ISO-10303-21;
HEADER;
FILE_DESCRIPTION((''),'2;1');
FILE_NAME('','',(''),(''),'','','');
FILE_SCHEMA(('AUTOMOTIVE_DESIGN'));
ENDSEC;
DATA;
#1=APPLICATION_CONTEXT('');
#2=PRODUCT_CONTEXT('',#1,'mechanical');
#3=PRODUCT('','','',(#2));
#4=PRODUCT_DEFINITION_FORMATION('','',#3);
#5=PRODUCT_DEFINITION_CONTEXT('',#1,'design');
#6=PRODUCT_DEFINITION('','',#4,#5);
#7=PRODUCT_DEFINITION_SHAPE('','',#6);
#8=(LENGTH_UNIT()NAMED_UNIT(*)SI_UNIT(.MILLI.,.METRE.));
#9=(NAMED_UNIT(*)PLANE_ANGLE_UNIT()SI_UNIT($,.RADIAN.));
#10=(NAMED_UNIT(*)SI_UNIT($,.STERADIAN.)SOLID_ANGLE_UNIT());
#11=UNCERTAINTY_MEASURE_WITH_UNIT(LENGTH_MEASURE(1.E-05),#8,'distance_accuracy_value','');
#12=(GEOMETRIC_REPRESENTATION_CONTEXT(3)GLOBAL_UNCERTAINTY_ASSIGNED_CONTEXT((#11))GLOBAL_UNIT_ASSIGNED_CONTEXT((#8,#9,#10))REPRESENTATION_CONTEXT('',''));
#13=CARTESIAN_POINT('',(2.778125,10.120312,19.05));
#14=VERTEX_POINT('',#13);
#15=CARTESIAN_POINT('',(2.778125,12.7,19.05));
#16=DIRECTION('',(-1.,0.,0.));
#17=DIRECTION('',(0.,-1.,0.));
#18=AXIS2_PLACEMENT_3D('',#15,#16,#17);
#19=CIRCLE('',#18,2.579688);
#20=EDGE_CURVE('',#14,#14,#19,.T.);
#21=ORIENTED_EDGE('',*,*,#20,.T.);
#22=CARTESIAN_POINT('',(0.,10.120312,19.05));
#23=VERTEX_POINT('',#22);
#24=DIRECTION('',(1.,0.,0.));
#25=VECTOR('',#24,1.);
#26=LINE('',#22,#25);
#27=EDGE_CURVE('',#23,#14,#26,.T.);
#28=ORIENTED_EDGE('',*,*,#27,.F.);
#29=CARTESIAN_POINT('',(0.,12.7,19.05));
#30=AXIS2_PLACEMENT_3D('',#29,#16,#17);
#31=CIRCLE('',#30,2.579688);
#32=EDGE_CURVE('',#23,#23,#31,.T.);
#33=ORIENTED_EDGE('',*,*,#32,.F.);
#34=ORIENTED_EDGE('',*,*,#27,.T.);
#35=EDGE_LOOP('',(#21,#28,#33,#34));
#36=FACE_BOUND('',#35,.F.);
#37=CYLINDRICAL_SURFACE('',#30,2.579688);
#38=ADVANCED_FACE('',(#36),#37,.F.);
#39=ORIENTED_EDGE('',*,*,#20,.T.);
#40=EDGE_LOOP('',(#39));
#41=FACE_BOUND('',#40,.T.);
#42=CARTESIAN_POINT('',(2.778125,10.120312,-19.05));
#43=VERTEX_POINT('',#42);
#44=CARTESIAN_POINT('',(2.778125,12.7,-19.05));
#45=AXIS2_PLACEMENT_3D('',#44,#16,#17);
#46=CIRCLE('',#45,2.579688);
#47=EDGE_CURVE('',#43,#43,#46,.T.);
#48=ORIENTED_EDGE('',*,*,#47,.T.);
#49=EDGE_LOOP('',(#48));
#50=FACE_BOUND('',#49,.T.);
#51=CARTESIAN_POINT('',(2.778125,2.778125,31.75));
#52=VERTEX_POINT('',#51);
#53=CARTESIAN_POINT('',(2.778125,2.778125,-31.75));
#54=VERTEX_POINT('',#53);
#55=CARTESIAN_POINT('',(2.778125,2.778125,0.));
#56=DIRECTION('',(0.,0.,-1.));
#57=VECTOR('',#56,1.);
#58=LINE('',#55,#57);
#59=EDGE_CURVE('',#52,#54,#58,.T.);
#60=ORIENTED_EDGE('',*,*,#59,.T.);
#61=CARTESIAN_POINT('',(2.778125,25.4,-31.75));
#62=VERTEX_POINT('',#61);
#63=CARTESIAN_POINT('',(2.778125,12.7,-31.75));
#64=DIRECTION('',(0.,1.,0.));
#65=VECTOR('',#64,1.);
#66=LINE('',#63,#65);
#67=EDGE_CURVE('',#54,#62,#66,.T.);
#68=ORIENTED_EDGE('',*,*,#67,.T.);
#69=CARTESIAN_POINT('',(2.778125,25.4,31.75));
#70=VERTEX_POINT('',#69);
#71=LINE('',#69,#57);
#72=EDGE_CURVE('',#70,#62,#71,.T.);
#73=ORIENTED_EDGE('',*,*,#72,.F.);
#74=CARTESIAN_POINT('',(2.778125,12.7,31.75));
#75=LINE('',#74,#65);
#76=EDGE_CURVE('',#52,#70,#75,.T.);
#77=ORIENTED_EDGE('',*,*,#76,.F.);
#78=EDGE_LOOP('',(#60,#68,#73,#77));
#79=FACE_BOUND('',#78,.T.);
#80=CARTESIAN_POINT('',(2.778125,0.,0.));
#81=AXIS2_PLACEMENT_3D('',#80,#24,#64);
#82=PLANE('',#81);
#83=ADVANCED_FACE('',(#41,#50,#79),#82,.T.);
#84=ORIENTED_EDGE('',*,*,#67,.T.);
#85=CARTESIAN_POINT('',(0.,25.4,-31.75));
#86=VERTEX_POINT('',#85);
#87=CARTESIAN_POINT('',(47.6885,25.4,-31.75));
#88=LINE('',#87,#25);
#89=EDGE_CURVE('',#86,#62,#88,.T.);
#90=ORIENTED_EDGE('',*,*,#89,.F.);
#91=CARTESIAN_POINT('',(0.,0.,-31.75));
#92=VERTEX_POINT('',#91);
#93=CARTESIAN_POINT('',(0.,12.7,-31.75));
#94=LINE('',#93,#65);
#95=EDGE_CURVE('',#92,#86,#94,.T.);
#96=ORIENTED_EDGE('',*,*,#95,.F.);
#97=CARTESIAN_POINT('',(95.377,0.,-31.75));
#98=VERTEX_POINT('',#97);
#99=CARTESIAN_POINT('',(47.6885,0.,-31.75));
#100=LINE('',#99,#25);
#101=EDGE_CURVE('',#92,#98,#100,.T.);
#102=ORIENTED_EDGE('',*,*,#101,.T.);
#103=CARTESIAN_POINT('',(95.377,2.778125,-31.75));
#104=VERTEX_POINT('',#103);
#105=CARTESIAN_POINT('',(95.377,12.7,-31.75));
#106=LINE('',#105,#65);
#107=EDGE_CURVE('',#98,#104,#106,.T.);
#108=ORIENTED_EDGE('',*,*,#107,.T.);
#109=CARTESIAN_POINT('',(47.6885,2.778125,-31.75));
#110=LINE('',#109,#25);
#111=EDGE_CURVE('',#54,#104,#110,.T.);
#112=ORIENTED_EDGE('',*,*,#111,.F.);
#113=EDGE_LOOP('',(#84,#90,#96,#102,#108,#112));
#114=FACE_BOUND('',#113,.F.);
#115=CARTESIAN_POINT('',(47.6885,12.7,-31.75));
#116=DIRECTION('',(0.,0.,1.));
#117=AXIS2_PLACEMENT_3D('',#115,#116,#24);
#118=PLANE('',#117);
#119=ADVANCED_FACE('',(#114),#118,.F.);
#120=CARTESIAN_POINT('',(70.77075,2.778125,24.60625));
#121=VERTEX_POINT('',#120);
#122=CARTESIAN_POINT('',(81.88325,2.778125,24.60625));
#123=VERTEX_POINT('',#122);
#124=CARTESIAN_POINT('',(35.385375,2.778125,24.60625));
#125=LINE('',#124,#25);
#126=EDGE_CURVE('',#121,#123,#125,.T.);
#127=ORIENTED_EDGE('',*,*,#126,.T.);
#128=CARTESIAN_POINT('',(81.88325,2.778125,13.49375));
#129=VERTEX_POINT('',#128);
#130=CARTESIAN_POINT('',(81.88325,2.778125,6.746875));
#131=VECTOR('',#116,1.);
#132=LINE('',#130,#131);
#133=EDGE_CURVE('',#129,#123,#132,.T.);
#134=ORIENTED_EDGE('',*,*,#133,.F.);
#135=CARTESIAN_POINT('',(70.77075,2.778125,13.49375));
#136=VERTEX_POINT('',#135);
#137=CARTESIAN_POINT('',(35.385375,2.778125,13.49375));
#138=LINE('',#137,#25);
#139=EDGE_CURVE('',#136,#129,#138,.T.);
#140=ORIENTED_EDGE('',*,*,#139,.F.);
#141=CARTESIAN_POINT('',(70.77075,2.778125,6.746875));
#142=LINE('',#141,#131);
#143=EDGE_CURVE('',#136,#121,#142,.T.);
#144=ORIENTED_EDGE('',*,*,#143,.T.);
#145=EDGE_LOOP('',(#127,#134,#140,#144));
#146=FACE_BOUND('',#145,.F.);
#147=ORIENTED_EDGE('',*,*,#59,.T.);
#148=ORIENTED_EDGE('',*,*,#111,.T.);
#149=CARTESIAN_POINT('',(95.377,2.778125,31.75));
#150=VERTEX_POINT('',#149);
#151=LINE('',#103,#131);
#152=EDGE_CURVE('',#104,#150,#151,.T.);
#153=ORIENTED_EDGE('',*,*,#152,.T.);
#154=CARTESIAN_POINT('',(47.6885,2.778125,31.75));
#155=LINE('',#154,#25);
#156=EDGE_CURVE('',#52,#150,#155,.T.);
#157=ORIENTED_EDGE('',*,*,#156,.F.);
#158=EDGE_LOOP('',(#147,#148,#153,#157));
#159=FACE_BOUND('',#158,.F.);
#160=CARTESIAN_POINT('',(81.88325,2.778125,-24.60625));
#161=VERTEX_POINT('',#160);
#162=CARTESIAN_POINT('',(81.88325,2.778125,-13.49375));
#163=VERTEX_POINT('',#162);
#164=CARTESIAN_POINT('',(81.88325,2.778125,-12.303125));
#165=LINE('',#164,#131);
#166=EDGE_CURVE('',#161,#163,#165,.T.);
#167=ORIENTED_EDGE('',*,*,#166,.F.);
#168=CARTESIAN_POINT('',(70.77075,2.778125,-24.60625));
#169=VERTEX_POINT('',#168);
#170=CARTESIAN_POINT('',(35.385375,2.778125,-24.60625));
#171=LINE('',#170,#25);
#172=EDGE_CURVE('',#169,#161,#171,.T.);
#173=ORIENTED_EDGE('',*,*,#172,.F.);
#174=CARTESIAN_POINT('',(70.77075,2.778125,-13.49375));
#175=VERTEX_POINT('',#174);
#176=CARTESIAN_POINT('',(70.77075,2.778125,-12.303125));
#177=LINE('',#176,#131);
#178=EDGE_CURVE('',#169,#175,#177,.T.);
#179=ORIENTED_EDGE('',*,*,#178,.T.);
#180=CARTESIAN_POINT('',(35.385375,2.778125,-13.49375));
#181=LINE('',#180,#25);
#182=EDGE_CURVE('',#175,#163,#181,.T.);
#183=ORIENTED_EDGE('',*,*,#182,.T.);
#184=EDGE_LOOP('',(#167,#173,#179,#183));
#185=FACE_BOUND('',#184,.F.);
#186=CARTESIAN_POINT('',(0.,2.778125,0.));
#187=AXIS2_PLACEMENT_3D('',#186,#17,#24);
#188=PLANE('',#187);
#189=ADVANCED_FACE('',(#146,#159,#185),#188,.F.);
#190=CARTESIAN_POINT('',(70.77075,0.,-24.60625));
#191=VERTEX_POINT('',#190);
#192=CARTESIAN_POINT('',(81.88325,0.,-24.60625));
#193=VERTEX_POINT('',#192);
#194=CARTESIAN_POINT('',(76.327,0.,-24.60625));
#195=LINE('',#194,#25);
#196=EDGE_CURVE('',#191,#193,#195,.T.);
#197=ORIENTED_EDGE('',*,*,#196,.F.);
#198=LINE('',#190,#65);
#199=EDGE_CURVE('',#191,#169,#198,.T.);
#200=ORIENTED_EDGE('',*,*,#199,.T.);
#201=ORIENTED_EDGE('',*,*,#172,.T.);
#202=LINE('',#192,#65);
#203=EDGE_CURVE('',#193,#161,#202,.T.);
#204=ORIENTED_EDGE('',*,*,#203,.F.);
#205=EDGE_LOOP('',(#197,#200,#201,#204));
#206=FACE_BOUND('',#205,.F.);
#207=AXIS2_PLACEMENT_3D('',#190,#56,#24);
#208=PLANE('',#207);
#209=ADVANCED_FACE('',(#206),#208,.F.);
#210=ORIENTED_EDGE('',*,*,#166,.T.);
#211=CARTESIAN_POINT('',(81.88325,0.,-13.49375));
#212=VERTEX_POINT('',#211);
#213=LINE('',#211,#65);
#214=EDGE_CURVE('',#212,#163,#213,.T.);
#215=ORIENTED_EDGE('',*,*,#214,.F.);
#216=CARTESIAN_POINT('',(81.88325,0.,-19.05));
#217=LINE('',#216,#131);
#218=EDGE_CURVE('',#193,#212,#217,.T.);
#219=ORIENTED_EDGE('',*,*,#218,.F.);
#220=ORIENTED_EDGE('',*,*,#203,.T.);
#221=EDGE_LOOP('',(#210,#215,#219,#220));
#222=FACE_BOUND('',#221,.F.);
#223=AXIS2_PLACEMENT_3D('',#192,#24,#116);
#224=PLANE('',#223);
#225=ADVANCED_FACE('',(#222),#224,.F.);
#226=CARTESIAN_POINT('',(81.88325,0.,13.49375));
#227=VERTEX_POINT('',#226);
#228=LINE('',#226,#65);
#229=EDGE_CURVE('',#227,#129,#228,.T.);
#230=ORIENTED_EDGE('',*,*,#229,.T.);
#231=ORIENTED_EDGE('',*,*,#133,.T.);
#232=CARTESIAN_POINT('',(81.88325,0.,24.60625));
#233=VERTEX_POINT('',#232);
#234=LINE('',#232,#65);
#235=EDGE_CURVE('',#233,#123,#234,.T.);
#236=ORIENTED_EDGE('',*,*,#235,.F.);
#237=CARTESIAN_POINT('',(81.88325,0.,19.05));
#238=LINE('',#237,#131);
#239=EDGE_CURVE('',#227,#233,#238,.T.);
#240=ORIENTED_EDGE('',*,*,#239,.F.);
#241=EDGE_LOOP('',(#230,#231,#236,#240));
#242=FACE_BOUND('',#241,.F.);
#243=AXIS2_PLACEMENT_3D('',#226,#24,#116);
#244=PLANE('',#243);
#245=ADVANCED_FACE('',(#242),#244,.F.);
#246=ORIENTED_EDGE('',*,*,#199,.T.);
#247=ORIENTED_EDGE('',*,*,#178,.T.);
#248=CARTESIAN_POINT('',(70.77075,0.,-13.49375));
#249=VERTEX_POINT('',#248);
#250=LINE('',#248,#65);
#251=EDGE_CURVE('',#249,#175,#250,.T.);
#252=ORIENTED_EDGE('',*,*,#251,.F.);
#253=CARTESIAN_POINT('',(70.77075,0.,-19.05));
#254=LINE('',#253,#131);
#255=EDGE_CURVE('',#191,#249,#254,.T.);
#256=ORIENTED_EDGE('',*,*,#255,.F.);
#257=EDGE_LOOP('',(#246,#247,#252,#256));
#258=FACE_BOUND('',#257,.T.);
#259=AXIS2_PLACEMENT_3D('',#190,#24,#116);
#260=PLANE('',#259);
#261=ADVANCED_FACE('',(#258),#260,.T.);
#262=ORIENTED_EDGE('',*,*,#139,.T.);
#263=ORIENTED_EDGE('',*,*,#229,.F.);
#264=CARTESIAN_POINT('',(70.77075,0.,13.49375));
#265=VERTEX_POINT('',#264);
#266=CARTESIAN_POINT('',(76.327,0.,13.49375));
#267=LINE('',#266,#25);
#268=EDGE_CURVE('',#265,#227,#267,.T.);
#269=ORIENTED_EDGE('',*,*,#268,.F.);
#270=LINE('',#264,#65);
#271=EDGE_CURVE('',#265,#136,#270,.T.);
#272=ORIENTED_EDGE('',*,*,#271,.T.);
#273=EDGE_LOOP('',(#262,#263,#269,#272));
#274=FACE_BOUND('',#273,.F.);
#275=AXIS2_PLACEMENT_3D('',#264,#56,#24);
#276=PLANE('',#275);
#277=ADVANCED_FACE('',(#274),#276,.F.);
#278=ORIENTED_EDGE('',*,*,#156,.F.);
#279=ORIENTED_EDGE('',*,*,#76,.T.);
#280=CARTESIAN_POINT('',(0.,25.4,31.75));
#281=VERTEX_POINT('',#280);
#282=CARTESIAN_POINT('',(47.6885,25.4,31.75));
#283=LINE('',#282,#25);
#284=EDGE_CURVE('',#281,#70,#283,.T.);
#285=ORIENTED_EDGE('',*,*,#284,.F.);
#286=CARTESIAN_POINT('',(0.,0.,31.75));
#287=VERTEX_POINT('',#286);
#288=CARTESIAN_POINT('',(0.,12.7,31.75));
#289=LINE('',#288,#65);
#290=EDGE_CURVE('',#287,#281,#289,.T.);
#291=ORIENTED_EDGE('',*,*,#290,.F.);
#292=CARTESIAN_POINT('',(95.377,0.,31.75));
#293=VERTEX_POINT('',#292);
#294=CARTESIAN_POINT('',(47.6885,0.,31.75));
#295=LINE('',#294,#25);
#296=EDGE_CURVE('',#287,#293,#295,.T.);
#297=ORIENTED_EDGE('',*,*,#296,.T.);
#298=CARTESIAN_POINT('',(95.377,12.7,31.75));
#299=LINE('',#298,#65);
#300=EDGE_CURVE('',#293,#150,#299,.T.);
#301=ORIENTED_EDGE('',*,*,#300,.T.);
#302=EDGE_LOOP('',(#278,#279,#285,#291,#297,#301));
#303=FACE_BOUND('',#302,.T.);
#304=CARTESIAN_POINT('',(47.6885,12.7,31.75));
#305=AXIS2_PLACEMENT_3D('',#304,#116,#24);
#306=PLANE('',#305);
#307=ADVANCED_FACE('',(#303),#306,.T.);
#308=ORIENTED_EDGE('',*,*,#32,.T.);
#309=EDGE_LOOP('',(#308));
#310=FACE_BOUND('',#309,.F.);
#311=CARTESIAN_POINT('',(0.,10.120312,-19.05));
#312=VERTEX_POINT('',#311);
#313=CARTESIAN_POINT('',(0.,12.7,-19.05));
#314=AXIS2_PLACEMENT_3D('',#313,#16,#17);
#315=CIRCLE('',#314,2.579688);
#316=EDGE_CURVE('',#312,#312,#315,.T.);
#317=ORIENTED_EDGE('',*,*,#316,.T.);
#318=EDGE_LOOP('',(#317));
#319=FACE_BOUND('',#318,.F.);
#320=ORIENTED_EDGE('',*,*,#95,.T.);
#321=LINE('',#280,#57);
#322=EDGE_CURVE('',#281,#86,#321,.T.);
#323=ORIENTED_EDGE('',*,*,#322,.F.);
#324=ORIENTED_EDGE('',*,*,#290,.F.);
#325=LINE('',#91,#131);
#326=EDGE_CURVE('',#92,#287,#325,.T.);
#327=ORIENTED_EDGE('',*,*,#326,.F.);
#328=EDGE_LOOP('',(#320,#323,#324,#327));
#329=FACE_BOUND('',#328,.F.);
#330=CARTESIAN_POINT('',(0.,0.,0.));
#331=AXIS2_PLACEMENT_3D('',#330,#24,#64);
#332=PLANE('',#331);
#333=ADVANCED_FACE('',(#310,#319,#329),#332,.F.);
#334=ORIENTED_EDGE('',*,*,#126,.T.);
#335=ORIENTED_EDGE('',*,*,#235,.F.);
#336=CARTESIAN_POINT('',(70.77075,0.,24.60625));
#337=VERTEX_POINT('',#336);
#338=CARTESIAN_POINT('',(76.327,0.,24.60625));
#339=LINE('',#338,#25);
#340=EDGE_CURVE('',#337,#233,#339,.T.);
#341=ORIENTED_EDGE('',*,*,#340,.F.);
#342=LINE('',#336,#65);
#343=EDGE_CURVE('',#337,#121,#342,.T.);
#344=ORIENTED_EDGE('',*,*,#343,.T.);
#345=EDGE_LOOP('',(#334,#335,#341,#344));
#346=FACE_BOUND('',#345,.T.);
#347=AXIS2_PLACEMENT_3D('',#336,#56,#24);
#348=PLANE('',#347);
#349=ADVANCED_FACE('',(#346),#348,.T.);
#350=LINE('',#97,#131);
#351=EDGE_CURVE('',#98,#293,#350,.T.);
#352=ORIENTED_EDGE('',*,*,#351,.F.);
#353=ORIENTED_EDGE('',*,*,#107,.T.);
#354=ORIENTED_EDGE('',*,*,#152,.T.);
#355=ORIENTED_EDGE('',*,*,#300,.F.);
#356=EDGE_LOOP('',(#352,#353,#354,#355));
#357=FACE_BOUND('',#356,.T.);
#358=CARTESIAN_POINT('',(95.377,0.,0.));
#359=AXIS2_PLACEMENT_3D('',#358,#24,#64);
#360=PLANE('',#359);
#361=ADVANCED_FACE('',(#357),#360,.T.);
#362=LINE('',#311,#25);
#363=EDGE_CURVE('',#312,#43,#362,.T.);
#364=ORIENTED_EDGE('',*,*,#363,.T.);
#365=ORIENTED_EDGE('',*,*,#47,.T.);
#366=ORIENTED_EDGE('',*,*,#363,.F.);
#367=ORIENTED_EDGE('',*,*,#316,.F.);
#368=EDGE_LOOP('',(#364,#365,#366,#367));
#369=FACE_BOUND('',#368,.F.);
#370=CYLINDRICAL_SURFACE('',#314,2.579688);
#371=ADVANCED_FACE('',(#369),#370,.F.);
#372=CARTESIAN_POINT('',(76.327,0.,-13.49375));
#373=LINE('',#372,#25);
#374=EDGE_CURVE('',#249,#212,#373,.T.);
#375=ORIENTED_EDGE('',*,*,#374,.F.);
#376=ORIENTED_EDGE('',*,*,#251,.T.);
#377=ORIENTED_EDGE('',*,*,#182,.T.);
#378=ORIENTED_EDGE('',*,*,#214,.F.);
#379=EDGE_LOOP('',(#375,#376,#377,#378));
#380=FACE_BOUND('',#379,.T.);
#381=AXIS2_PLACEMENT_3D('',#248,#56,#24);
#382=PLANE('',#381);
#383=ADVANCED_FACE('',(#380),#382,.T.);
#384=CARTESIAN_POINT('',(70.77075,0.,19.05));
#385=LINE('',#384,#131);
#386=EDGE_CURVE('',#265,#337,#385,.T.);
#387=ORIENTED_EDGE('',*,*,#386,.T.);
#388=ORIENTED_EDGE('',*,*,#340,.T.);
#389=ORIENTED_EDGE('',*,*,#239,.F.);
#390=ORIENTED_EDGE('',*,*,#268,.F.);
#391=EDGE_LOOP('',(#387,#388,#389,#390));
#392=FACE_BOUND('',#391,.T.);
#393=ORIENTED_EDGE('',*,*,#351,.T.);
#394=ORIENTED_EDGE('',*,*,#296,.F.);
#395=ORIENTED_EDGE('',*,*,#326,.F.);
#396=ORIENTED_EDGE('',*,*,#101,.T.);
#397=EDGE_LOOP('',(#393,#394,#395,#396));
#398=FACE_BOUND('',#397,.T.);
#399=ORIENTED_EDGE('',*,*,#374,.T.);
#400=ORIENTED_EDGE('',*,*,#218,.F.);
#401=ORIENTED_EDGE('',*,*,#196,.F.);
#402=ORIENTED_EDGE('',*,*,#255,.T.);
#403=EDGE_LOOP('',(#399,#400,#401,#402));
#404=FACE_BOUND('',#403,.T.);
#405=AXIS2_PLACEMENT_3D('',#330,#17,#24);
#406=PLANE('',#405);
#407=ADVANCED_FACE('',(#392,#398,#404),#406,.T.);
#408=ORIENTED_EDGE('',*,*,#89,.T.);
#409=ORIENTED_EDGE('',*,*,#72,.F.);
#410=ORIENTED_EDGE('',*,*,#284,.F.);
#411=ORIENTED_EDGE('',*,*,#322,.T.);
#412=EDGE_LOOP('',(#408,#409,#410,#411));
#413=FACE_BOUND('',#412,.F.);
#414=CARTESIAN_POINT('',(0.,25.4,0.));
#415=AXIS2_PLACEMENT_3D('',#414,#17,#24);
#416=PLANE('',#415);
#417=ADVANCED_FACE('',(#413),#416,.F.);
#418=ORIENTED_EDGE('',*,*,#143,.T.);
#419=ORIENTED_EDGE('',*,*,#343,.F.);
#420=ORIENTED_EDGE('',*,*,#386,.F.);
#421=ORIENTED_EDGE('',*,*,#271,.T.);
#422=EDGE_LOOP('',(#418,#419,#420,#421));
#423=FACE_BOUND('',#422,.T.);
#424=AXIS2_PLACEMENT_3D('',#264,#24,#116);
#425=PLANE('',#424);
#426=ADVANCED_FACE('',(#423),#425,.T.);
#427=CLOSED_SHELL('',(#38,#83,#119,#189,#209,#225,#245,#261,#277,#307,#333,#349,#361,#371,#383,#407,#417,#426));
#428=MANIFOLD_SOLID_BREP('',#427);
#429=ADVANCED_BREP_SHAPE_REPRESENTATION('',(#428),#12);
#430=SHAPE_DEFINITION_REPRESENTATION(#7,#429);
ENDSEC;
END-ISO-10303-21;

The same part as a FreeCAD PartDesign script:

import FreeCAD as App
import Part
import Sketcher

V = App.Vector
Q = App.Units.Quantity


def faces_at(feature, points):
    """Names of the faces that lie closest to the given points."""
    faces = feature.Shape.Faces
    near = lambda p: min(range(len(faces)), key=lambda i: faces[i].distToShape(Part.Vertex(*p))[0])
    return sorted({f"Face{near(p) + 1}" for p in points})

doc = App.newDocument("Part")
body = doc.addObject("PartDesign::Body", "Body")

# Sketch on XY plane
sketch1 = body.newObject("Sketcher::SketchObject", "Sketch")
sketch1.AttachmentSupport = (doc.getObject("XY_Plane"), [""])
sketch1.MapMode = "FlatFace"
sketch1.addGeometry([
    Part.LineSegment(V(0, 25, 0), V(0, 0, 0)),
    Part.LineSegment(V(0, 0, 0), V(95, 0, 0)),
    Part.LineSegment(V(95, 0, 0), V(95, 25, 0)),
    Part.LineSegment(V(95, 25, 0), V(0, 25, 0)),
], False)
sketch1.addConstraint([
    Sketcher.Constraint("Coincident", 0, 2, 1, 1),
    Sketcher.Constraint("Coincident", 1, 2, 2, 1),
    Sketcher.Constraint("Coincident", 2, 2, 3, 1),
    Sketcher.Constraint("Coincident", 3, 2, 0, 1),
    Sketcher.Constraint("Vertical", 0),
    Sketcher.Constraint("Horizontal", 1),
    Sketcher.Constraint("Vertical", 2),
    Sketcher.Constraint("Horizontal", 3),
    Sketcher.Constraint("Coincident", 0, 2, -1, 1),
    Sketcher.Constraint("DistanceY", 0, 2, 0, 1, Q("1 in")),
    Sketcher.Constraint("DistanceX", 1, 1, 1, 2, Q("3.755 in")),
])
pad1 = body.newObject("PartDesign::Pad", "Pad")
pad1.Profile = sketch1
pad1.Length = Q("2.5 in")
pad1.Midplane = True
doc.recompute()

thickness = body.newObject("PartDesign::Thickness", "Thickness")
thickness.Base = (pad1, faces_at(pad1, [
    (95.377, 12.7, 0),
    (47.688, 12.7, 31.75),
    (47.688, 12.7, -31.75),
    (47.688, 25.4, 0),
]))
thickness.Value = Q("0.109375 in")
thickness.Reversed = True
thickness.Join = "Arc"

# Sketch on XZ plane
sketch2 = body.newObject("Sketcher::SketchObject", "Sketch001")
sketch2.AttachmentSupport = (doc.getObject("XZ_Plane"), [""])
sketch2.MapMode = "FlatFace"
sketch2.addGeometry([
    Part.LineSegment(V(71, -13, 0), V(71, -25, 0)),  # 0
    Part.LineSegment(V(71, -25, 0), V(82, -25, 0)),  # 1
    Part.LineSegment(V(82, -25, 0), V(82, -13, 0)),  # 2
    Part.LineSegment(V(82, -13, 0), V(71, -13, 0)),  # 3
    Part.LineSegment(V(71, 25, 0), V(71, 13, 0)),  # 4
    Part.LineSegment(V(71, 13, 0), V(82, 13, 0)),  # 5
    Part.LineSegment(V(82, 13, 0), V(82, 25, 0)),  # 6
    Part.LineSegment(V(82, 25, 0), V(71, 25, 0)),  # 7
], False)
sketch2.addConstraint([
    Sketcher.Constraint("Coincident", 0, 2, 1, 1),
    Sketcher.Constraint("Coincident", 1, 2, 2, 1),
    Sketcher.Constraint("Coincident", 2, 2, 3, 1),
    Sketcher.Constraint("Coincident", 3, 2, 0, 1),
    Sketcher.Constraint("Coincident", 4, 2, 5, 1),
    Sketcher.Constraint("Coincident", 5, 2, 6, 1),
    Sketcher.Constraint("Coincident", 6, 2, 7, 1),
    Sketcher.Constraint("Coincident", 7, 2, 4, 1),
    Sketcher.Constraint("Vertical", 0),
    Sketcher.Constraint("Horizontal", 1),
    Sketcher.Constraint("Vertical", 2),
    Sketcher.Constraint("Horizontal", 3),
    Sketcher.Constraint("Vertical", 4),
    Sketcher.Constraint("Horizontal", 5),
    Sketcher.Constraint("Vertical", 6),
    Sketcher.Constraint("Horizontal", 7),
    Sketcher.Constraint("Symmetric", 3, 2, 4, 2, -1),
    Sketcher.Constraint("Symmetric", 1, 2, 6, 2, -1),
    Sketcher.Constraint("Equal", 7, 0),
    Sketcher.Constraint("DistanceY", 0, 2, 4, 2, Q("1.5 in")),
    Sketcher.Constraint("DistanceX", 1, 1, 1, 2, Q("0.4375 in")),
    Sketcher.Constraint("DistanceX", -1, 1, 0, 2, Q("70.77075 mm")),
])
pocket1 = body.newObject("PartDesign::Pocket", "Pocket")
pocket1.Profile = sketch2
pocket1.Type = "ThroughAll"

# Sketch on YZ plane
sketch3 = body.newObject("Sketcher::SketchObject", "Sketch002")
sketch3.AttachmentSupport = (doc.getObject("YZ_Plane"), [""])
sketch3.MapMode = "FlatFace"
sketch3.addGeometry([
    Part.Circle(V(12.7, 19.1, 0), V(0, 0, 1), 2.6),
    Part.Circle(V(12.7, -19.1, 0), V(0, 0, 1), 2.6),
], False)
sketch3.addConstraint([
    Sketcher.Constraint("Equal", 0, 1),
    Sketcher.Constraint("Symmetric", 0, 3, 1, 3, -1),
    Sketcher.Constraint("Diameter", 0, Q("0.203125 in")),
    Sketcher.Constraint("DistanceX", -1, 1, 0, 3, Q("0.5 in")),
    Sketcher.Constraint("DistanceY", 1, 3, 0, 3, Q("1.5 in")),
])
pocket2 = body.newObject("PartDesign::Pocket", "Pocket001")
pocket2.Profile = sketch3
pocket2.Type = "ThroughAll"
pocket2.Reversed = True

doc.recompute()
